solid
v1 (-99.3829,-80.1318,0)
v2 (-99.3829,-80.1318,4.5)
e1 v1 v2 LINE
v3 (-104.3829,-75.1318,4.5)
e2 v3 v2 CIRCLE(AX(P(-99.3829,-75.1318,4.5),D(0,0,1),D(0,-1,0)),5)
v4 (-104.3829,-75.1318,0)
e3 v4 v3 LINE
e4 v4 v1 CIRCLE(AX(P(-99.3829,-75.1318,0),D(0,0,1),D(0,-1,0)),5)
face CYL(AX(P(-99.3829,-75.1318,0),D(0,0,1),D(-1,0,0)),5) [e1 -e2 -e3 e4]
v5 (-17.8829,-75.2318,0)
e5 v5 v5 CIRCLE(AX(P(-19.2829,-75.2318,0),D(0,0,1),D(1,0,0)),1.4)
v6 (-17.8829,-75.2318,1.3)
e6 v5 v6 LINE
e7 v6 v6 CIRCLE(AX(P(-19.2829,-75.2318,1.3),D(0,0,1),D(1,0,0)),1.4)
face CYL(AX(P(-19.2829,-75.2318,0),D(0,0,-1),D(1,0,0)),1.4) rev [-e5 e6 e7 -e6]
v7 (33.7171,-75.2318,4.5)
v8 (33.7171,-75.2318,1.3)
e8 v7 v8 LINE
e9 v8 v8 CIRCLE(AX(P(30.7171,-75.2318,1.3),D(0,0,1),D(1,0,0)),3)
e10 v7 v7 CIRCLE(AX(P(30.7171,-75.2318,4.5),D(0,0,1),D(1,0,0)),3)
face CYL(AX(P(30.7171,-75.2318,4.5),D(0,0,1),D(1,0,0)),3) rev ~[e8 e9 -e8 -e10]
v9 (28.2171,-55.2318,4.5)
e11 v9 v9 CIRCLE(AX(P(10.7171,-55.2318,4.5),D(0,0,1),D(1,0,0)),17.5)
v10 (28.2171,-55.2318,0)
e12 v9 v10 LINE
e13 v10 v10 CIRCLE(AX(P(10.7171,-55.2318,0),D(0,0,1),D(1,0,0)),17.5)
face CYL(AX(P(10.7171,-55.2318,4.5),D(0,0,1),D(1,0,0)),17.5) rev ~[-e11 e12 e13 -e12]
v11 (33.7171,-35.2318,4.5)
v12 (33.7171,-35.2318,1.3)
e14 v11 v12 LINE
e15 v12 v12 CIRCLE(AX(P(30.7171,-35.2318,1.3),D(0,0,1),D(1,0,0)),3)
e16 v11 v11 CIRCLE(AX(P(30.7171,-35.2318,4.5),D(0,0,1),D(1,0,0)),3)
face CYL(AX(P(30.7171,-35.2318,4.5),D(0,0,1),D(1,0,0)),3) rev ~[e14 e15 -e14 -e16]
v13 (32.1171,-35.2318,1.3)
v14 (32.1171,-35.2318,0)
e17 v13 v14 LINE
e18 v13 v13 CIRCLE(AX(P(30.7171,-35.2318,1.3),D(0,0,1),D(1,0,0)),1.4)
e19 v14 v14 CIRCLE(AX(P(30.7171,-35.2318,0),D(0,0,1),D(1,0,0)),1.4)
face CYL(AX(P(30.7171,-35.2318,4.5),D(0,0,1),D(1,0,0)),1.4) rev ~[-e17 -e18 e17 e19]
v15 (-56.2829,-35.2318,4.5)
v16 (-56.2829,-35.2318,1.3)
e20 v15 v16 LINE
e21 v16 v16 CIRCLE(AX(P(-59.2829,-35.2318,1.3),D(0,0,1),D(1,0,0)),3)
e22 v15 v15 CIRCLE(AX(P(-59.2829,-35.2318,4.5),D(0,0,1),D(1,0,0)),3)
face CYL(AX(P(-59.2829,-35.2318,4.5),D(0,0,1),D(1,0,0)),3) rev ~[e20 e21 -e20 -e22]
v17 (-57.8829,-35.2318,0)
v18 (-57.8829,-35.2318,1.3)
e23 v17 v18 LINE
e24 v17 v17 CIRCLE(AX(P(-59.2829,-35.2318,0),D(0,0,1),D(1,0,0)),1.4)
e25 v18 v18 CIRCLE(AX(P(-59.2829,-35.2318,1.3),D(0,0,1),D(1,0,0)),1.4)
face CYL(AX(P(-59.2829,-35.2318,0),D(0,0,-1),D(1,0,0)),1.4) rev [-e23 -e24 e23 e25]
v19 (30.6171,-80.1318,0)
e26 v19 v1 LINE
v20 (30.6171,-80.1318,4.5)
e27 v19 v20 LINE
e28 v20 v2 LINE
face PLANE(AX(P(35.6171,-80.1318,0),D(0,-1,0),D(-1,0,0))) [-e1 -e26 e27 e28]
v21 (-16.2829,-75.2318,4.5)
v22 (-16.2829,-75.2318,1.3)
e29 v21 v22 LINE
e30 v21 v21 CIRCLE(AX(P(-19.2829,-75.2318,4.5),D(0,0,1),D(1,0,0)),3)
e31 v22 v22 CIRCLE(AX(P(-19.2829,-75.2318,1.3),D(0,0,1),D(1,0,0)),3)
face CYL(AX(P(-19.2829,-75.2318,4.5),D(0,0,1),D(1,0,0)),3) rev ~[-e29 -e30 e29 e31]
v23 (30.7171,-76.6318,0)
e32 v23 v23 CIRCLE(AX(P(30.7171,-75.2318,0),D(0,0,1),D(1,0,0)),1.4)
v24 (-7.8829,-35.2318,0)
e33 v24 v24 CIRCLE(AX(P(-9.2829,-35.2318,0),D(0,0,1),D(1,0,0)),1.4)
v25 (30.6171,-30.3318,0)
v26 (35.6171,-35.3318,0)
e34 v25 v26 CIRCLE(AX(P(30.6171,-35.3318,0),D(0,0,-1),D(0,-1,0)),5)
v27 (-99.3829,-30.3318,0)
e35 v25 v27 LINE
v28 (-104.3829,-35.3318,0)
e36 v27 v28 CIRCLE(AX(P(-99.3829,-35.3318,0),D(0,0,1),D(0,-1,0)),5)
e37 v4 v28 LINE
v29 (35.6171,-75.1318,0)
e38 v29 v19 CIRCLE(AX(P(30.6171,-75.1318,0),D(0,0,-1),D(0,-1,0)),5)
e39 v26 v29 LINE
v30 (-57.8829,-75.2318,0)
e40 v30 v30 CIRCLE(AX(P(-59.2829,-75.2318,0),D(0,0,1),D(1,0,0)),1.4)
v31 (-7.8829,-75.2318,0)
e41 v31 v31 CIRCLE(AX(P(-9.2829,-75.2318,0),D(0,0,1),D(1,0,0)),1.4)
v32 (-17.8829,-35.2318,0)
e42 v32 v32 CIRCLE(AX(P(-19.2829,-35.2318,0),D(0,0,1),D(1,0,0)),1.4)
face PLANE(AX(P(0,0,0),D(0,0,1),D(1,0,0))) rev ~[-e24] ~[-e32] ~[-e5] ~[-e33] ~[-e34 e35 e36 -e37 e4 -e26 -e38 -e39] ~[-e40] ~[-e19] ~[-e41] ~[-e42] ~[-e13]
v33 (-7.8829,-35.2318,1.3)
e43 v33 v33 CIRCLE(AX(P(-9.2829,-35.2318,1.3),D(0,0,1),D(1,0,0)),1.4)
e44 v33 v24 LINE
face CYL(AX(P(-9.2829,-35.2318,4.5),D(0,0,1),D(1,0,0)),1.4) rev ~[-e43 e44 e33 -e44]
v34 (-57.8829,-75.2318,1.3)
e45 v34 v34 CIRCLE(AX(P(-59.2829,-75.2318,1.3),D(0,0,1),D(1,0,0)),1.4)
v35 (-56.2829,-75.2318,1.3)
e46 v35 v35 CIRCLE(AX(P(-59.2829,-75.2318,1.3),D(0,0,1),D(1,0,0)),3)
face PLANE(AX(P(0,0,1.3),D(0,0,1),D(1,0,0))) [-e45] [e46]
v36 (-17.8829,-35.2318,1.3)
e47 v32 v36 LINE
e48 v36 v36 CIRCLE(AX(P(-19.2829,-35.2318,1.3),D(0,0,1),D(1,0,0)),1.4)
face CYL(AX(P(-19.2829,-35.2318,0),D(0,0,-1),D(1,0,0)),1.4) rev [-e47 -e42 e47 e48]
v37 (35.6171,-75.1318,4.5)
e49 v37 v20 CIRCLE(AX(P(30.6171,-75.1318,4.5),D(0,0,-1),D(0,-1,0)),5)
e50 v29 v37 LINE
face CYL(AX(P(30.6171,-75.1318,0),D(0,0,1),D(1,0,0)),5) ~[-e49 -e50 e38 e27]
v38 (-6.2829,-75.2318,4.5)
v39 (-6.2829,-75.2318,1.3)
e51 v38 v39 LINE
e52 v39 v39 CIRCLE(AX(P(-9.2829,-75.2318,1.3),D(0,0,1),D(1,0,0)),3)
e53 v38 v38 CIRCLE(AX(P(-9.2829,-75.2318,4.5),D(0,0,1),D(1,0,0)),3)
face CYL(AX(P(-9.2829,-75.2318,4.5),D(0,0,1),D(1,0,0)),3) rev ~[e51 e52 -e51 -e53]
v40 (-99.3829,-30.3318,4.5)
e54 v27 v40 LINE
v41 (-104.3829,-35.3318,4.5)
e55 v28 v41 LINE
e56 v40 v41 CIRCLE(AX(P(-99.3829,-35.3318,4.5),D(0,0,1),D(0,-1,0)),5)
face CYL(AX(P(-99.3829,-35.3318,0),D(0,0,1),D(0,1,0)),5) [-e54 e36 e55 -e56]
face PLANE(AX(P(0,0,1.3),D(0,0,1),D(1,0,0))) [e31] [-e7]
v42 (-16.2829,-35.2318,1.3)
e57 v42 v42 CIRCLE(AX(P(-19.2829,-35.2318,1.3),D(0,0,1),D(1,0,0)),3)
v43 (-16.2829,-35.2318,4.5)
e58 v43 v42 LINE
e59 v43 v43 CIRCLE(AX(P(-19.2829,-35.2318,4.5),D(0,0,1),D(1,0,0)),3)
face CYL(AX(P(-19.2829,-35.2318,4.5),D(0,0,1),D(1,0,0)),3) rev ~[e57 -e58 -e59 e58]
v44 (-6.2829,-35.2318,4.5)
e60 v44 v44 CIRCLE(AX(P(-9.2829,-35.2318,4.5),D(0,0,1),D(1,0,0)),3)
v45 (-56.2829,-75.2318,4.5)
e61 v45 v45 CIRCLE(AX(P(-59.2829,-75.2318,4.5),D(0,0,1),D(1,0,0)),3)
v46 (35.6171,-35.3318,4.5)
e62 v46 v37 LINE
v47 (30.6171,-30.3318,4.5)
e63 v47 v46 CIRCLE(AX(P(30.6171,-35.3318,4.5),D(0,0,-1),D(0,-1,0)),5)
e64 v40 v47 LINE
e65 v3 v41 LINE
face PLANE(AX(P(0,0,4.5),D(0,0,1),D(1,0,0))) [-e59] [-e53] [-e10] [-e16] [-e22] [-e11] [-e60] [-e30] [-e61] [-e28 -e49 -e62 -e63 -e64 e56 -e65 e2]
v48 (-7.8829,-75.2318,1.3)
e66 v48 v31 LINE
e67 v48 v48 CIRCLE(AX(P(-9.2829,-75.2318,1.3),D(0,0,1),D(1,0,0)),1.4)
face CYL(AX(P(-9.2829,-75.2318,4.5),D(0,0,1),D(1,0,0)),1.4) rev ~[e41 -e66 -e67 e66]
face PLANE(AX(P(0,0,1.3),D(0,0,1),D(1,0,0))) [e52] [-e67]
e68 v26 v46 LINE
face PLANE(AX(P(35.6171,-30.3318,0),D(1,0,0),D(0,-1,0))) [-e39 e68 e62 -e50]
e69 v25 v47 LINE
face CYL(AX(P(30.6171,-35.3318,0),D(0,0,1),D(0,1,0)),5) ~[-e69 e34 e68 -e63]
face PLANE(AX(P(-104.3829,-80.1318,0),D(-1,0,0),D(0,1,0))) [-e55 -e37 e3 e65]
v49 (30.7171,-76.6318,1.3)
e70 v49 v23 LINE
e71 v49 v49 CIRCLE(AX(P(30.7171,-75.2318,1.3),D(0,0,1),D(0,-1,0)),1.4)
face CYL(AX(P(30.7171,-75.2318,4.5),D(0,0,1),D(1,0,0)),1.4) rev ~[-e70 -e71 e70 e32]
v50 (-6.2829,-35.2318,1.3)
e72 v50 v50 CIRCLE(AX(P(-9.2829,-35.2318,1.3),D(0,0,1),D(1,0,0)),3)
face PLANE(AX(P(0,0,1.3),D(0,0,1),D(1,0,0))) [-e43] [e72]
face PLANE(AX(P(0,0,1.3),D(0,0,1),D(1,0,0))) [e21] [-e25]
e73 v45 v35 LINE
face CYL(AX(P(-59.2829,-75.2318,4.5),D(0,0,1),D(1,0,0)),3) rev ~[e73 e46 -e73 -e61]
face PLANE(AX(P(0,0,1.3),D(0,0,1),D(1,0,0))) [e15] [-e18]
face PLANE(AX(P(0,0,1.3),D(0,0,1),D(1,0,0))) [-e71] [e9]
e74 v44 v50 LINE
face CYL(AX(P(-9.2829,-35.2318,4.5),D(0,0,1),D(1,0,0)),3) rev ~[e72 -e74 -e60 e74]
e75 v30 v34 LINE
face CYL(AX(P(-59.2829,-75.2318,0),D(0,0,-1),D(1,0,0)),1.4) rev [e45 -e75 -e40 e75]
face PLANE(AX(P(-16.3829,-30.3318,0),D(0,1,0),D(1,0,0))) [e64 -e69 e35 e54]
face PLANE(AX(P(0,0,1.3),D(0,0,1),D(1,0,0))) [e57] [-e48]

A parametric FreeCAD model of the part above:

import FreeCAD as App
import Part
import Sketcher

V = App.Vector
Q = App.Units.Quantity


def edges_at(feature, points):
    """Names of the edges that pass closest to the given points."""
    edges = feature.Shape.Edges
    near = lambda p: min(range(len(edges)), key=lambda i: edges[i].distToShape(Part.Vertex(*p))[0])
    return sorted({f"Edge{near(p) + 1}" for p in points})

doc = App.newDocument("Part")
body = doc.addObject("PartDesign::Body", "Body")

# Sketch on XY plane
sketch1 = body.newObject("Sketcher::SketchObject", "Sketch")
sketch1.AttachmentSupport = (doc.getObject("XY_Plane"), [""])
sketch1.MapMode = "FlatFace"
sketch1.addGeometry(Part.LineSegment(V(35.6, -30.3, 0), V(-104.4, -30.3, 0)), False)
sketch1.addGeometry(Part.LineSegment(V(-104.4, -30.3, 0), V(-104.4, -80.1, 0)), False)
sketch1.addGeometry(Part.LineSegment(V(-104.4, -80.1, 0), V(35.6, -80.1, 0)), False)
sketch1.addGeometry(Part.LineSegment(V(35.6, -80.1, 0), V(35.6, -30.3, 0)), False)
sketch1.addGeometry(Part.Circle(V(-59.3, -75.2, 0), V(0, 0, 1), 1.4), False)
sketch1.addGeometry(Part.Circle(V(-19.3, -75.2, 0), V(0, 0, 1), 1.4), False)
sketch1.addGeometry(Part.Circle(V(-59.3, -35.2, 0), V(0, 0, 1), 1.4), False)
sketch1.addGeometry(Part.Circle(V(-19.3, -35.2, 0), V(0, 0, 1), 1.4), False)
sketch1.addConstraint(Sketcher.Constraint("Coincident", 0, 2, 1, 1))
sketch1.addConstraint(Sketcher.Constraint("Coincident", 1, 2, 2, 1))
sketch1.addConstraint(Sketcher.Constraint("Coincident", 2, 2, 3, 1))
sketch1.addConstraint(Sketcher.Constraint("Coincident", 3, 2, 0, 1))
sketch1.addConstraint(Sketcher.Constraint("Horizontal", 0))
sketch1.addConstraint(Sketcher.Constraint("Vertical", 1))
sketch1.addConstraint(Sketcher.Constraint("Horizontal", 2))
sketch1.addConstraint(Sketcher.Constraint("Vertical", 3))
sketch1.addConstraint(Sketcher.Constraint("Equal", 4, 5))
sketch1.addConstraint(Sketcher.Constraint("Equal", 5, 6))
sketch1.addConstraint(Sketcher.Constraint("Equal", 6, 7))
sketch1.addConstraint(Sketcher.Constraint("Horizontal", 4, 3, 5, 3))
sketch1.addConstraint(Sketcher.Constraint("Horizontal", 6, 3, 7, 3))
sketch1.addConstraint(Sketcher.Constraint("Vertical", 4, 3, 6, 3))
sketch1.addConstraint(Sketcher.Constraint("Vertical", 5, 3, 7, 3))
sketch1.addConstraint(Sketcher.Constraint("Diameter", 4, Q("2.8 mm")))
sketch1.addConstraint(Sketcher.Constraint("DistanceX", 0, 2, 0, 1, Q("140 mm")))
sketch1.addConstraint(Sketcher.Constraint("DistanceY", 1, 2, 1, 1, Q("49.8 mm")))
sketch1.addConstraint(Sketcher.Constraint("DistanceX", 4, 3, 5, 3, Q("40 mm")))
sketch1.addConstraint(Sketcher.Constraint("DistanceY", 4, 3, 6, 3, Q("40 mm")))
sketch1.addConstraint(Sketcher.Constraint("DistanceX", 0, 2, 6, 3, Q("45.1 mm")))
sketch1.addConstraint(Sketcher.Constraint("DistanceY", 6, 3, 0, 2, Q("4.9 mm")))
sketch1.addConstraint(Sketcher.Constraint("DistanceX", 4, 3, -1, 1, Q("59.283 mm")))
sketch1.addConstraint(Sketcher.Constraint("DistanceY", 4, 3, -1, 1, Q("75.2318 mm")))
pad1 = body.newObject("PartDesign::Pad", "Pad")
pad1.Profile = sketch1
pad1.Length = 4.5

# Sketch on XY plane
sketch2 = body.newObject("Sketcher::SketchObject", "Sketch001")
sketch2.AttachmentSupport = (doc.getObject("XY_Plane"), [""])
sketch2.MapMode = "FlatFace"
sketch2.AttachmentOffset = App.Placement(V(0, 0, 4.5), App.Rotation())
sketch2.addGeometry(Part.Circle(V(-9.3, -75.2, 0), V(0, 0, 1), 1.4), False)
sketch2.addGeometry(Part.Circle(V(30.7, -75.2, 0), V(0, 0, 1), 1.4), False)
sketch2.addGeometry(Part.Circle(V(30.7, -35.2, 0), V(0, 0, 1), 1.4), False)
sketch2.addGeometry(Part.Circle(V(-9.3, -35.2, 0), V(0, 0, 1), 1.4), False)
sketch2.addGeometry(Part.Circle(V(10.7, -55.2, 0), V(0, 0, 1), 17.5), False)
sketch2.addConstraint(Sketcher.Constraint("Equal", 0, 1))
sketch2.addConstraint(Sketcher.Constraint("Equal", 1, 2))
sketch2.addConstraint(Sketcher.Constraint("Equal", 2, 3))
sketch2.addConstraint(Sketcher.Constraint("Horizontal", 0, 3, 1, 3))
sketch2.addConstraint(Sketcher.Constraint("Horizontal", 2, 3, 3, 3))
sketch2.addConstraint(Sketcher.Constraint("Vertical", 1, 3, 2, 3))
sketch2.addConstraint(Sketcher.Constraint("Vertical", 0, 3, 3, 3))
sketch2.addConstraint(Sketcher.Constraint("Diameter", 4, Q("35 mm")))
sketch2.addConstraint(Sketcher.Constraint("Diameter", 0, Q("2.8 mm")))
sketch2.addConstraint(Sketcher.Constraint("DistanceX", 0, 3, 1, 3, Q("40 mm")))
sketch2.addConstraint(Sketcher.Constraint("DistanceY", 1, 3, 2, 3, Q("40 mm")))
sketch2.addConstraint(Sketcher.Constraint("DistanceX", 4, 3, 2, 3, Q("20 mm")))
sketch2.addConstraint(Sketcher.Constraint("DistanceY", 4, 3, 2, 3, Q("20 mm")))
sketch2.addConstraint(Sketcher.Constraint("DistanceX", 0, 3, -1, 1, Q("9.283 mm")))
sketch2.addConstraint(Sketcher.Constraint("DistanceY", 0, 3, -1, 1, Q("75.2318 mm")))
pocket1 = body.newObject("PartDesign::Pocket", "Pocket")
pocket1.Profile = sketch2
pocket1.Type = "ThroughAll"

# Sketch on XY plane
sketch3 = body.newObject("Sketcher::SketchObject", "Sketch002")
sketch3.AttachmentSupport = (doc.getObject("XY_Plane"), [""])
sketch3.MapMode = "FlatFace"
sketch3.AttachmentOffset = App.Placement(V(0, 0, 4.5), App.Rotation())
sketch3.addGeometry(Part.Circle(V(30.7, -75.2, 0), V(0, 0, 1), 3), False)
sketch3.addGeometry(Part.Circle(V(30.7, -75.2, 0), V(0, 0, 1), 1.4), False)
sketch3.addGeometry(Part.Circle(V(-9.3, -75.2, 0), V(0, 0, 1), 3), False)
sketch3.addGeometry(Part.Circle(V(-9.3, -75.2, 0), V(0, 0, 1), 1.4), False)
sketch3.addGeometry(Part.Circle(V(-19.3, -75.2, 0), V(0, 0, 1), 3), False)
sketch3.addGeometry(Part.Circle(V(-19.3, -75.2, 0), V(0, 0, 1), 1.4), False)
sketch3.addGeometry(Part.Circle(V(-59.3, -75.2, 0), V(0, 0, 1), 3), False)
sketch3.addGeometry(Part.Circle(V(-59.3, -75.2, 0), V(0, 0, 1), 1.4), False)
sketch3.addGeometry(Part.Circle(V(30.7, -35.2, 0), V(0, 0, 1), 3), False)
sketch3.addGeometry(Part.Circle(V(30.7, -35.2, 0), V(0, 0, 1), 1.4), False)
sketch3.addGeometry(Part.Circle(V(-9.3, -35.2, 0), V(0, 0, 1), 3), False)
sketch3.addGeometry(Part.Circle(V(-9.3, -35.2, 0), V(0, 0, 1), 1.4), False)
sketch3.addGeometry(Part.Circle(V(-19.3, -35.2, 0), V(0, 0, 1), 3), False)
sketch3.addGeometry(Part.Circle(V(-19.3, -35.2, 0), V(0, 0, 1), 1.4), False)
sketch3.addGeometry(Part.Circle(V(-59.3, -35.2, 0), V(0, 0, 1), 3), False)
sketch3.addGeometry(Part.Circle(V(-59.3, -35.2, 0), V(0, 0, 1), 1.4), False)
sketch3.addConstraint(Sketcher.Constraint("Coincident", 1, 3, 0, 3))
sketch3.addConstraint(Sketcher.Constraint("Coincident", 3, 3, 2, 3))
sketch3.addConstraint(Sketcher.Constraint("Coincident", 5, 3, 4, 3))
sketch3.addConstraint(Sketcher.Constraint("Coincident", 7, 3, 6, 3))
sketch3.addConstraint(Sketcher.Constraint("Coincident", 9, 3, 8, 3))
sketch3.addConstraint(Sketcher.Constraint("Coincident", 11, 3, 10, 3))
sketch3.addConstraint(Sketcher.Constraint("Coincident", 13, 3, 12, 3))
sketch3.addConstraint(Sketcher.Constraint("Coincident", 15, 3, 14, 3))
sketch3.addConstraint(Sketcher.Constraint("Equal", 0, 2))
sketch3.addConstraint(Sketcher.Constraint("Equal", 1, 3))
sketch3.addConstraint(Sketcher.Constraint("Equal", 2, 4))
sketch3.addConstraint(Sketcher.Constraint("Equal", 3, 5))
sketch3.addConstraint(Sketcher.Constraint("Equal", 4, 6))
sketch3.addConstraint(Sketcher.Constraint("Equal", 5, 7))
sketch3.addConstraint(Sketcher.Constraint("Equal", 6, 8))
sketch3.addConstraint(Sketcher.Constraint("Equal", 7, 9))
sketch3.addConstraint(Sketcher.Constraint("Equal", 8, 10))
sketch3.addConstraint(Sketcher.Constraint("Equal", 9, 11))
sketch3.addConstraint(Sketcher.Constraint("Equal", 10, 12))
sketch3.addConstraint(Sketcher.Constraint("Equal", 11, 13))
sketch3.addConstraint(Sketcher.Constraint("Equal", 12, 14))
sketch3.addConstraint(Sketcher.Constraint("Equal", 13, 15))
sketch3.addConstraint(Sketcher.Constraint("Horizontal", 1, 3, 2, 3))
sketch3.addConstraint(Sketcher.Constraint("Horizontal", 3, 3, 4, 3))
sketch3.addConstraint(Sketcher.Constraint("Horizontal", 5, 3, 6, 3))
sketch3.addConstraint(Sketcher.Constraint("Horizontal", 9, 3, 10, 3))
sketch3.addConstraint(Sketcher.Constraint("Horizontal", 11, 3, 12, 3))
sketch3.addConstraint(Sketcher.Constraint("Horizontal", 13, 3, 14, 3))
sketch3.addConstraint(Sketcher.Constraint("Vertical", 1, 3, 8, 3))
sketch3.addConstraint(Sketcher.Constraint("Vertical", 3, 3, 10, 3))
sketch3.addConstraint(Sketcher.Constraint("Vertical", 5, 3, 12, 3))
sketch3.addConstraint(Sketcher.Constraint("Vertical", 7, 3, 14, 3))
sketch3.addConstraint(Sketcher.Constraint("Diameter", 0, Q("6 mm")))
sketch3.addConstraint(Sketcher.Constraint("Diameter", 1, Q("2.8 mm")))
sketch3.addConstraint(Sketcher.Constraint("DistanceX", 2, 3, 0, 3, Q("40 mm")))
sketch3.addConstraint(Sketcher.Constraint("DistanceX", 4, 3, 2, 3, Q("10 mm")))
sketch3.addConstraint(Sketcher.Constraint("DistanceX", 6, 3, 4, 3, Q("40 mm")))
sketch3.addConstraint(Sketcher.Constraint("DistanceY", 0, 3, 8, 3, Q("40 mm")))
sketch3.addConstraint(Sketcher.Constraint("DistanceX", -1, 1, 0, 3, Q("30.717 mm")))
sketch3.addConstraint(Sketcher.Constraint("DistanceY", 0, 3, -1, 1, Q("75.2318 mm")))
pocket2 = body.newObject("PartDesign::Pocket", "Pocket001")
pocket2.Profile = sketch3
pocket2.Length = 3.2
doc.recompute()

fillet = body.newObject("PartDesign::Fillet", "Fillet")
fillet.Base = (pocket2, edges_at(pocket2, [
    (35.617, -30.332, 2.25),
    (-104.383, -30.332, 2.25),
    (-104.383, -80.132, 2.25),
    (35.617, -80.132, 2.25),
]))
fillet.Radius = 5

doc.recompute()
